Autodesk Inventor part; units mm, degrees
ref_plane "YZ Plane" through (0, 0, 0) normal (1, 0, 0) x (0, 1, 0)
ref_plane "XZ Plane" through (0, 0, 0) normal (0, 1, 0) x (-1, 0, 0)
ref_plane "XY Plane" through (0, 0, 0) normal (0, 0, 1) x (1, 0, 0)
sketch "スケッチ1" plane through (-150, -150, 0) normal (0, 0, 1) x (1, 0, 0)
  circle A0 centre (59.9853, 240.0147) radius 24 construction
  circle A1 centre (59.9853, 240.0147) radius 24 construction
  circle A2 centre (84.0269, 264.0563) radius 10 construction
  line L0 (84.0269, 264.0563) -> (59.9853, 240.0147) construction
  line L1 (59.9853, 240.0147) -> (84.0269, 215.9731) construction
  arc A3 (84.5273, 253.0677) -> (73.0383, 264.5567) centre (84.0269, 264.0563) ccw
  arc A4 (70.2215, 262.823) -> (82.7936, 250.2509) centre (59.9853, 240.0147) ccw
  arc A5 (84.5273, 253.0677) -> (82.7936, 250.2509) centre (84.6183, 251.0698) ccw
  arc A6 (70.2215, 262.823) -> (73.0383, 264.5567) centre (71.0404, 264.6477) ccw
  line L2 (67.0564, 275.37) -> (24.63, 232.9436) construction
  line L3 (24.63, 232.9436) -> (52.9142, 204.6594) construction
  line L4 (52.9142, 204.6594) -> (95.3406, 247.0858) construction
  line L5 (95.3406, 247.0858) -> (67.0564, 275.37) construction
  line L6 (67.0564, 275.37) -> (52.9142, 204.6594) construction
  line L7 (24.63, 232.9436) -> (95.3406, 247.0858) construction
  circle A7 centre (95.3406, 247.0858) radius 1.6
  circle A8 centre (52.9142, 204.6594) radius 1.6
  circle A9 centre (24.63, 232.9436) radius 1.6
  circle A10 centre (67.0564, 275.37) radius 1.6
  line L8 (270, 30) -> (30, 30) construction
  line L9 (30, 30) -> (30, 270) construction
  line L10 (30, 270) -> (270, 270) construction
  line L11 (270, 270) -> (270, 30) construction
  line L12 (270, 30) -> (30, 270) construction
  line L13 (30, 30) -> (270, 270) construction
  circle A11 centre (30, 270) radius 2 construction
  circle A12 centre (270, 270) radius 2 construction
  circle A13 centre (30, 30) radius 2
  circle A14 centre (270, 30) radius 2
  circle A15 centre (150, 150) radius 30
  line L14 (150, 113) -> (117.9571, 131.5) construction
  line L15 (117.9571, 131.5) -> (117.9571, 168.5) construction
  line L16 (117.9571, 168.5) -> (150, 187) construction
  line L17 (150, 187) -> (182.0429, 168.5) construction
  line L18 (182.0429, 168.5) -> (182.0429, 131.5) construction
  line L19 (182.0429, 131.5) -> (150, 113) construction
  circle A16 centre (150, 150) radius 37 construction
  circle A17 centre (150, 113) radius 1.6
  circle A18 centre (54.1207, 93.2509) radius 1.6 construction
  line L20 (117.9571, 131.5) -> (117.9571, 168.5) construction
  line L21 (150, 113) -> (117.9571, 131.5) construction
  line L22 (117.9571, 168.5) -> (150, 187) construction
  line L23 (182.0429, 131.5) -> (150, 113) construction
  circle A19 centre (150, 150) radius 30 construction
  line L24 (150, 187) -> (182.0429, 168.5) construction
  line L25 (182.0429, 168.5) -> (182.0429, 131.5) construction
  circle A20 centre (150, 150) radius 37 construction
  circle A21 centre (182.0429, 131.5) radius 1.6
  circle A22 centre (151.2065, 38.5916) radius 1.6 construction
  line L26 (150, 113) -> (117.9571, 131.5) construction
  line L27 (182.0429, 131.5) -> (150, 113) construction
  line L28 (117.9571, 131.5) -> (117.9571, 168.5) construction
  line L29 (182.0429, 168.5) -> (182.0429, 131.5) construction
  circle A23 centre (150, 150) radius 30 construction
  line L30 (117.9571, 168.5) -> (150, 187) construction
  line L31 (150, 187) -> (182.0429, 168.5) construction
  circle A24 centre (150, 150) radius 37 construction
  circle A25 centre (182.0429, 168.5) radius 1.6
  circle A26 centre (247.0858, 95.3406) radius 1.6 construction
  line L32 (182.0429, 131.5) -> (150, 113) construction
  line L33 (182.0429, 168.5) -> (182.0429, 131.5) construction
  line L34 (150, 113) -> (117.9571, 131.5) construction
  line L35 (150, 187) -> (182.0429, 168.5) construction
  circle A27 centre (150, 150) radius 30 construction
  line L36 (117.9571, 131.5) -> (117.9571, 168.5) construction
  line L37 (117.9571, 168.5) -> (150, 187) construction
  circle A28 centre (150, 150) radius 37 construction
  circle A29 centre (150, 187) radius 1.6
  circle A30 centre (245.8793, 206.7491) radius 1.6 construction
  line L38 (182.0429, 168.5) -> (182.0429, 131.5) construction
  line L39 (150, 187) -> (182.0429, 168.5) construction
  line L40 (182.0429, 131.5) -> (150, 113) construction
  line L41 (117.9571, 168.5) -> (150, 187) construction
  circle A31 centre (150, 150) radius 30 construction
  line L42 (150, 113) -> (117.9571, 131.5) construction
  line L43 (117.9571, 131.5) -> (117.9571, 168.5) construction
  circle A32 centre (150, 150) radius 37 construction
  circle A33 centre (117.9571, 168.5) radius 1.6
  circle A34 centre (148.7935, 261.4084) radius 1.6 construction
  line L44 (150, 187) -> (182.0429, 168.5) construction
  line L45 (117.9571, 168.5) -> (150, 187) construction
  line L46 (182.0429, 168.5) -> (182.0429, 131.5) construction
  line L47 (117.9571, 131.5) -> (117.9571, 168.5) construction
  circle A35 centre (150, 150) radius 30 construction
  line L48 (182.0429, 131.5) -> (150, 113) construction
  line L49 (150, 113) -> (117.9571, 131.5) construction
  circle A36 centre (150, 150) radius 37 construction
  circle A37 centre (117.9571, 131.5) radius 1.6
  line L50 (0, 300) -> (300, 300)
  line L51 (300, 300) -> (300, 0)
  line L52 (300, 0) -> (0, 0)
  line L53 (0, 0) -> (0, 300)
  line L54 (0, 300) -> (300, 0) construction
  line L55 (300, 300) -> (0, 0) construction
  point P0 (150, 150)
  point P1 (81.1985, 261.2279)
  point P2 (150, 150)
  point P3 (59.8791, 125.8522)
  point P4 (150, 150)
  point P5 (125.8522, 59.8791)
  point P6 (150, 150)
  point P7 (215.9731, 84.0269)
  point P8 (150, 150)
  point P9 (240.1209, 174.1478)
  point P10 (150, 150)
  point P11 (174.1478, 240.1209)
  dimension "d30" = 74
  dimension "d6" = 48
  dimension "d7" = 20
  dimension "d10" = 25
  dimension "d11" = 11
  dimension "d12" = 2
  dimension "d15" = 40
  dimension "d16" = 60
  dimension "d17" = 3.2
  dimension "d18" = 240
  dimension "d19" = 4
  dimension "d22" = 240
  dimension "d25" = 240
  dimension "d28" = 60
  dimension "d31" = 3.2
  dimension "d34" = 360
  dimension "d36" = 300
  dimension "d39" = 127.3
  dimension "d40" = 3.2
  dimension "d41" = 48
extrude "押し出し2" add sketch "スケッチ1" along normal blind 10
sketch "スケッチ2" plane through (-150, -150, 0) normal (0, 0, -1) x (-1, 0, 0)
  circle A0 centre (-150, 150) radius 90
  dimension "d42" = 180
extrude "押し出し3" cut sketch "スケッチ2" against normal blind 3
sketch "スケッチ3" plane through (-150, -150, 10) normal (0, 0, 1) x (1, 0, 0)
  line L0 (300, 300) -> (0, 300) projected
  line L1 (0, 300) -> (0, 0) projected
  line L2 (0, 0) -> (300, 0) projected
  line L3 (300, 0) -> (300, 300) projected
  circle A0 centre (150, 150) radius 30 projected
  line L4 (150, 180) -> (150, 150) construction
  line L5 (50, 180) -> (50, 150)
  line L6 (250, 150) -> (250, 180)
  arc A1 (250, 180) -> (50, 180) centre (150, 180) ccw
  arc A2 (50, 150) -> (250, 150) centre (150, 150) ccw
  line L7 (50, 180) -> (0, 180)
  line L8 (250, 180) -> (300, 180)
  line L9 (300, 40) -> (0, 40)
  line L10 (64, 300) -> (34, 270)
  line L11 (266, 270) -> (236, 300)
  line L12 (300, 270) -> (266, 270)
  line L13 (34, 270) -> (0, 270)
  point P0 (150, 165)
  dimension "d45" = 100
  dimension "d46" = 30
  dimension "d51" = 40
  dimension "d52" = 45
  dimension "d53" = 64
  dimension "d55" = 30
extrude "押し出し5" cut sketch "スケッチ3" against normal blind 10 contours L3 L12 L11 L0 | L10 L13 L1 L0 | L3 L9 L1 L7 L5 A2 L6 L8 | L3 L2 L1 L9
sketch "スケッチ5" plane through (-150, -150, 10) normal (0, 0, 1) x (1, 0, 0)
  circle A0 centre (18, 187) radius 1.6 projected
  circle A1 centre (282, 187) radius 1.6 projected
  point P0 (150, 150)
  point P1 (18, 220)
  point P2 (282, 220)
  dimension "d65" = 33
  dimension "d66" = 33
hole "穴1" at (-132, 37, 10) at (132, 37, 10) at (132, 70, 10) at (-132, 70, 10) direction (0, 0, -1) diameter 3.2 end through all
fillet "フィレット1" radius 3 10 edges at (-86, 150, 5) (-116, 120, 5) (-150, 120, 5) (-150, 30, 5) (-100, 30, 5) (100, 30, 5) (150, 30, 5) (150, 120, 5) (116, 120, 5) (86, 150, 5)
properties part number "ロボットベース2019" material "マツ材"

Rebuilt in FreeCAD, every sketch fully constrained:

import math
import FreeCAD as App
import Part
import Sketcher


def edges_at(feature, points):
    """Names of the edges that pass closest to the given points."""
    edges = feature.Shape.Edges
    near = lambda p: min(range(len(edges)), key=lambda i: edges[i].distToShape(Part.Vertex(*p))[0])
    return sorted({f"Edge{near(p) + 1}" for p in points})

doc = App.newDocument("Part")
body = doc.addObject("PartDesign::Body", "Body")

# Sketch on XY plane
sketch1 = doc.addObject("Sketcher::SketchObject", "Sketch")
body.addObject(sketch1)
sketch1.AttachmentSupport = (doc.XY_Plane, [""])
sketch1.MapMode = "FlatFace"
sketch1.addGeometry(Part.LineSegment(App.Vector(150, 150, 0), App.Vector(-150, 150, 0)), False)
sketch1.addGeometry(Part.LineSegment(App.Vector(-150, 150, 0), App.Vector(-150, -150, 0)), False)
sketch1.addGeometry(Part.LineSegment(App.Vector(-150, -150, 0), App.Vector(150, -150, 0)), False)
sketch1.addGeometry(Part.LineSegment(App.Vector(150, -150, 0), App.Vector(150, 150, 0)), False)
sketch1.addGeometry(Part.Circle(App.Vector(-120, -120, 0), App.Vector(0, 0, 1), 2), False)
sketch1.addGeometry(Part.Circle(App.Vector(-32, -18.5, 0), App.Vector(0, 0, 1), 1.6), False)
sketch1.addGeometry(Part.Circle(App.Vector(120, -120, 0), App.Vector(0, 0, 1), 2), False)
sketch1.addGeometry(Part.Circle(App.Vector(0, -37, 0), App.Vector(0, 0, 1), 1.6), False)
sketch1.addGeometry(Part.Circle(App.Vector(32, -18.5, 0), App.Vector(0, 0, 1), 1.6), False)
sketch1.addGeometry(Part.Circle(App.Vector(-97.1, 54.7, 0), App.Vector(0, 0, 1), 1.6), False)
sketch1.addGeometry(Part.Circle(App.Vector(-32, 18.5, 0), App.Vector(0, 0, 1), 1.6), False)
sketch1.addGeometry(Part.Circle(App.Vector(-125.4, 82.9, 0), App.Vector(0, 0, 1), 1.6), False)
sketch1.addGeometry(Part.ArcOfCircle(Part.Circle(App.Vector(-66, 114.1, 0), App.Vector(0, 0, 1), 11), math.radians(-87), math.radians(177)), False)
sketch1.addGeometry(Part.ArcOfCircle(Part.Circle(App.Vector(-65.4, 101.1, 0), App.Vector(0, 0, 1), 2), math.radians(93), math.radians(204)), False)
sketch1.addGeometry(Part.ArcOfCircle(Part.Circle(App.Vector(-90, 90, 0), App.Vector(0, 0, 1), 25), math.radians(66), math.radians(384)), False)
sketch1.addGeometry(Part.ArcOfCircle(Part.Circle(App.Vector(-79, 114.6, 0), App.Vector(0, 0, 1), 2), math.radians(-114), math.radians(-3)), False)
sketch1.addGeometry(Part.Circle(App.Vector(-82.9, 125.4, 0), App.Vector(0, 0, 1), 1.6), False)
sketch1.addGeometry(Part.Circle(App.Vector(-54.7, 97.1, 0), App.Vector(0, 0, 1), 1.6), False)
sketch1.addGeometry(Part.Circle(App.Vector(0, 0, 0), App.Vector(0, 0, 1), 30), False)
sketch1.addGeometry(Part.Circle(App.Vector(32, 18.5, 0), App.Vector(0, 0, 1), 1.6), False)
sketch1.addGeometry(Part.Circle(App.Vector(0, 37, 0), App.Vector(0, 0, 1), 1.6), False)
sketch1.addConstraint(Sketcher.Constraint("Coincident", 0, 2, 1, 1))
sketch1.addConstraint(Sketcher.Constraint("Coincident", 1, 2, 2, 1))
sketch1.addConstraint(Sketcher.Constraint("Coincident", 2, 2, 3, 1))
sketch1.addConstraint(Sketcher.Constraint("Coincident", 3, 2, 0, 1))
sketch1.addConstraint(Sketcher.Constraint("Tangent", 12, 1, 13, 1))
sketch1.addConstraint(Sketcher.Constraint("Tangent", 13, 2, 14, 2))
sketch1.addConstraint(Sketcher.Constraint("Tangent", 14, 1, 15, 1))
sketch1.addConstraint(Sketcher.Constraint("Tangent", 15, 2, 12, 2))
sketch1.addConstraint(Sketcher.Constraint("Horizontal", 0))
sketch1.addConstraint(Sketcher.Constraint("Vertical", 1))
sketch1.addConstraint(Sketcher.Constraint("Horizontal", 2))
sketch1.addConstraint(Sketcher.Constraint("Vertical", 3))
sketch1.addConstraint(Sketcher.Constraint("Coincident", 18, 3, -1, 1))
sketch1.addConstraint(Sketcher.Constraint("Equal", 4, 6))
sketch1.addConstraint(Sketcher.Constraint("Equal", 5, 7))
sketch1.addConstraint(Sketcher.Constraint("Equal", 7, 8))
sketch1.addConstraint(Sketcher.Constraint("Equal", 8, 9))
sketch1.addConstraint(Sketcher.Constraint("Equal", 9, 10))
sketch1.addConstraint(Sketcher.Constraint("Equal", 10, 11))
sketch1.addConstraint(Sketcher.Constraint("Equal", 6, 13))
sketch1.addConstraint(Sketcher.Constraint("Equal", 13, 15))
sketch1.addConstraint(Sketcher.Constraint("Equal", 11, 16))
sketch1.addConstraint(Sketcher.Constraint("Equal", 16, 17))
sketch1.addConstraint(Sketcher.Constraint("Equal", 17, 19))
sketch1.addConstraint(Sketcher.Constraint("Equal", 19, 20))
sketch1.addConstraint(Sketcher.Constraint("Symmetric", 8, 3, 10, 3, -1, 1))
sketch1.addConstraint(Sketcher.Constraint("Symmetric", 5, 3, 19, 3, -1, 1))
sketch1.addConstraint(Sketcher.Constraint("Symmetric", 7, 3, 20, 3, -1, 1))
sketch1.addConstraint(Sketcher.Constraint("Symmetric", 0, 2, 2, 2, -1, 1))
sketch1.addConstraint(Sketcher.Constraint("Symmetric", 4, 3, 6, 3, -2))
sketch1.addConstraint(Sketcher.Constraint("Symmetric", 5, 3, 8, 3, -2))
sketch1.addConstraint(Sketcher.Constraint("PointOnObject", 7, 3, -2))
sketch1.addConstraint(Sketcher.Constraint("Equal", 2, 1))
sketch1.addConstraint(Sketcher.Constraint("Diameter", 4, 4.0))
sketch1.addConstraint(Sketcher.Constraint("Diameter", 18, 60.0))
sketch1.addConstraint(Sketcher.Constraint("Radius", 12, 11.0))
sketch1.addConstraint(Sketcher.Constraint("Radius", 14, 25.0))
sketch1.addConstraint(Sketcher.Constraint("Diameter", 5, 3.2))
sketch1.addConstraint(Sketcher.Constraint("DistanceX", 0, 2, 0, 1, 300.0))
sketch1.addConstraint(Sketcher.Constraint("DistanceX", 4, 3, 6, 3, 240.0))
sketch1.addConstraint(Sketcher.Constraint("DistanceY", 4, 3, -1, 1, 120.0))
sketch1.addConstraint(Sketcher.Constraint("DistanceY", 7, 3, -1, 1, 37.0))
sketch1.addConstraint(Sketcher.Constraint("DistanceY", 5, 3, 10, 3, 37.0))
sketch1.addConstraint(Sketcher.Constraint("DistanceX", 11, 3, -1, 1, 125.37))
sketch1.addConstraint(Sketcher.Constraint("DistanceY", -1, 1, 16, 3, 125.37))
sketch1.addConstraint(Sketcher.Constraint("DistanceY", 12, 1, 15, 3, 11.58))
sketch1.addConstraint(Sketcher.Constraint("DistanceX", 5, 3, -1, 1, 32.043))
sketch1.addConstraint(Sketcher.Constraint("DistanceX", 12, 3, -1, 1, 65.973))
sketch1.addConstraint(Sketcher.Constraint("DistanceY", -1, 1, 13, 2, 100.251))
sketch1.addConstraint(Sketcher.Constraint("DistanceX", 9, 3, 5, 3, 65.043))
sketch1.addConstraint(Sketcher.Constraint("DistanceY", 9, 3, 12, 3, 59.397))
sketch1.addConstraint(Sketcher.Constraint("DistanceX", 9, 3, 13, 3, 31.704))
sketch1.addConstraint(Sketcher.Constraint("DistanceY", 11, 3, 14, 3, 7.071))
sketch1.addConstraint(Sketcher.Constraint("DistanceX", 16, 3, 15, 3, 3.984))
sketch1.addConstraint(Sketcher.Constraint("DistanceY", 17, 3, 13, 3, 3.984))
sketch1.addConstraint(Sketcher.Constraint("DistanceX", 13, 2, 17, 3, 12.547))
pad1 = doc.addObject("PartDesign::Pad", "Pad")
body.addObject(pad1)
pad1.Profile = sketch1
pad1.Length = 10

# Sketch on XY plane
sketch2 = doc.addObject("Sketcher::SketchObject", "Sketch001")
body.addObject(sketch2)
sketch2.AttachmentSupport = (doc.XY_Plane, [""])
sketch2.MapMode = "FlatFace"
sketch2.addGeometry(Part.Circle(App.Vector(0, 0, 0), App.Vector(0, 0, 1), 90), False)
sketch2.addConstraint(Sketcher.Constraint("Coincident", 0, 3, -1, 1))
sketch2.addConstraint(Sketcher.Constraint("Diameter", 0, 180.0))
pocket1 = doc.addObject("PartDesign::Pocket", "Pocket")
body.addObject(pocket1)
pocket1.Profile = sketch2
pocket1.Length = 3
pocket1.Reversed = True

# Sketch on XY plane
sketch3 = doc.addObject("Sketcher::SketchObject", "Sketch002")
body.addObject(sketch3)
sketch3.AttachmentSupport = (doc.XY_Plane, [""])
sketch3.MapMode = "FlatFace"
sketch3.AttachmentOffset = App.Placement(App.Vector(0, 0, 10), App.Rotation())
sketch3.addGeometry(Part.LineSegment(App.Vector(150, 120, 0), App.Vector(150, 150, 0)), False)
sketch3.addGeometry(Part.LineSegment(App.Vector(150, 150, 0), App.Vector(86, 150, 0)), False)
sketch3.addGeometry(Part.LineSegment(App.Vector(86, 150, 0), App.Vector(116, 120, 0)), False)
sketch3.addGeometry(Part.LineSegment(App.Vector(116, 120, 0), App.Vector(150, 120, 0)), False)
sketch3.addGeometry(Part.LineSegment(App.Vector(-116, 120, 0), App.Vector(-86, 150, 0)), False)
sketch3.addGeometry(Part.LineSegment(App.Vector(-86, 150, 0), App.Vector(-150, 150, 0)), False)
sketch3.addGeometry(Part.LineSegment(App.Vector(-150, 150, 0), App.Vector(-150, 120, 0)), False)
sketch3.addGeometry(Part.LineSegment(App.Vector(-150, 120, 0), App.Vector(-116, 120, 0)), False)
sketch3.addGeometry(Part.LineSegment(App.Vector(150, 30, 0), App.Vector(100, 30, 0)), False)
sketch3.addGeometry(Part.LineSegment(App.Vector(100, 30, 0), App.Vector(100, 0, 0)), False)
sketch3.addGeometry(Part.ArcOfCircle(Part.Circle(App.Vector(0, 0, 0), App.Vector(0, 0, 1), 100), math.radians(180), math.radians(360)), False)
sketch3.addGeometry(Part.LineSegment(App.Vector(-100, 0, 0), App.Vector(-100, 30, 0)), False)
sketch3.addGeometry(Part.LineSegment(App.Vector(-100, 30, 0), App.Vector(-150, 30, 0)), False)
sketch3.addGeometry(Part.LineSegment(App.Vector(-150, 30, 0), App.Vector(-150, -150, 0)), False)
sketch3.addGeometry(Part.LineSegment(App.Vector(-150, -150, 0), App.Vector(150, -150, 0)), False)
sketch3.addGeometry(Part.LineSegment(App.Vector(150, -150, 0), App.Vector(150, 30, 0)), False)
sketch3.addConstraint(Sketcher.Constraint("Coincident", 0, 2, 1, 1))
sketch3.addConstraint(Sketcher.Constraint("Coincident", 1, 2, 2, 1))
sketch3.addConstraint(Sketcher.Constraint("Coincident", 2, 2, 3, 1))
sketch3.addConstraint(Sketcher.Constraint("Coincident", 3, 2, 0, 1))
sketch3.addConstraint(Sketcher.Constraint("Coincident", 4, 2, 5, 1))
sketch3.addConstraint(Sketcher.Constraint("Coincident", 5, 2, 6, 1))
sketch3.addConstraint(Sketcher.Constraint("Coincident", 6, 2, 7, 1))
sketch3.addConstraint(Sketcher.Constraint("Coincident", 7, 2, 4, 1))
sketch3.addConstraint(Sketcher.Constraint("Coincident", 8, 2, 9, 1))
sketch3.addConstraint(Sketcher.Constraint("Tangent", 9, 2, 10, 2))
sketch3.addConstraint(Sketcher.Constraint("Tangent", 10, 1, 11, 1))
sketch3.addConstraint(Sketcher.Constraint("Coincident", 11, 2, 12, 1))
sketch3.addConstraint(Sketcher.Constraint("Coincident", 12, 2, 13, 1))
sketch3.addConstraint(Sketcher.Constraint("Coincident", 13, 2, 14, 1))
sketch3.addConstraint(Sketcher.Constraint("Coincident", 14, 2, 15, 1))
sketch3.addConstraint(Sketcher.Constraint("Coincident", 15, 2, 8, 1))
sketch3.addConstraint(Sketcher.Constraint("Vertical", 0))
sketch3.addConstraint(Sketcher.Constraint("Horizontal", 1))
sketch3.addConstraint(Sketcher.Constraint("Horizontal", 3))
sketch3.addConstraint(Sketcher.Constraint("Horizontal", 5))
sketch3.addConstraint(Sketcher.Constraint("Vertical", 6))
sketch3.addConstraint(Sketcher.Constraint("Horizontal", 7))
sketch3.addConstraint(Sketcher.Constraint("Horizontal", 8))
sketch3.addConstraint(Sketcher.Constraint("Vertical", 9))
sketch3.addConstraint(Sketcher.Constraint("Vertical", 11))
sketch3.addConstraint(Sketcher.Constraint("Horizontal", 12))
sketch3.addConstraint(Sketcher.Constraint("Vertical", 13))
sketch3.addConstraint(Sketcher.Constraint("Horizontal", 14))
sketch3.addConstraint(Sketcher.Constraint("Vertical", 15))
sketch3.addConstraint(Sketcher.Constraint("Coincident", 10, 3, -1, 1))
sketch3.addConstraint(Sketcher.Constraint("Symmetric", 0, 2, 13, 2, -1, 1))
sketch3.addConstraint(Sketcher.Constraint("Symmetric", 5, 2, 14, 2, -1, 1))
sketch3.addConstraint(Sketcher.Constraint("Symmetric", 3, 2, 6, 2, -2))
sketch3.addConstraint(Sketcher.Constraint("Perpendicular", 2, 4))
sketch3.addConstraint(Sketcher.Constraint("Horizontal", 8, 2, 11, 2))
sketch3.addConstraint(Sketcher.Constraint("Equal", 1, 5))
sketch3.addConstraint(Sketcher.Constraint("Equal", 3, 7))
sketch3.addConstraint(Sketcher.Constraint("Equal", 6, 9))
sketch3.addConstraint(Sketcher.Constraint("Radius", 10, 100.0))
sketch3.addConstraint(Sketcher.Constraint("DistanceX", 1, 2, 1, 1, 64.0))
sketch3.addConstraint(Sketcher.Constraint("DistanceY", 0, 1, 0, 2, 30.0))
sketch3.addConstraint(Sketcher.Constraint("DistanceX", 8, 2, 8, 1, 50.0))
sketch3.addConstraint(Sketcher.Constraint("DistanceY", 13, 2, 13, 1, 180.0))
pocket2 = doc.addObject("PartDesign::Pocket", "Pocket001")
body.addObject(pocket2)
pocket2.Profile = sketch3
pocket2.Length = 10

# Sketch on XY plane
sketch4 = doc.addObject("Sketcher::SketchObject", "Sketch003")
body.addObject(sketch4)
sketch4.AttachmentSupport = (doc.XY_Plane, [""])
sketch4.MapMode = "FlatFace"
sketch4.AttachmentOffset = App.Placement(App.Vector(0, 0, 10), App.Rotation())
sketch4.addGeometry(Part.Circle(App.Vector(-132, 37, 0), App.Vector(0, 0, 1), 1.6), False)
sketch4.addGeometry(Part.Circle(App.Vector(132, 37, 0), App.Vector(0, 0, 1), 1.6), False)
sketch4.addGeometry(Part.Circle(App.Vector(132, 70, 0), App.Vector(0, 0, 1), 1.6), False)
sketch4.addGeometry(Part.Circle(App.Vector(-132, 70, 0), App.Vector(0, 0, 1), 1.6), False)
sketch4.addConstraint(Sketcher.Constraint("Equal", 0, 1))
sketch4.addConstraint(Sketcher.Constraint("Equal", 1, 2))
sketch4.addConstraint(Sketcher.Constraint("Equal", 2, 3))
sketch4.addConstraint(Sketcher.Constraint("Symmetric", 0, 3, 1, 3, -2))
sketch4.addConstraint(Sketcher.Constraint("Symmetric", 2, 3, 3, 3, -2))
sketch4.addConstraint(Sketcher.Constraint("Vertical", 1, 3, 2, 3))
sketch4.addConstraint(Sketcher.Constraint("Diameter", 0, 3.2))
sketch4.addConstraint(Sketcher.Constraint("DistanceX", 0, 3, -1, 1, 132.0))
sketch4.addConstraint(Sketcher.Constraint("DistanceY", -1, 1, 0, 3, 37.0))
sketch4.addConstraint(Sketcher.Constraint("DistanceY", -1, 1, 2, 3, 70.0))
doc.recompute()
hole = doc.addObject("PartDesign::Hole", "Hole")
body.addObject(hole)
hole.Profile = sketch4
hole.ThreadType = "None"
hole.Diameter = 3.2
hole.DepthType = "ThroughAll"
doc.recompute()

fillet = doc.addObject("PartDesign::Fillet", "Fillet")
body.addObject(fillet)
fillet.Base = (hole, edges_at(hole, [
    (-86, 150, 5),
    (-116, 120, 5),
    (-150, 120, 5),
    (-150, 30, 5),
    (-100, 30, 5),
    (100, 30, 5),
    (150, 30, 5),
    (150, 120, 5),
    (116, 120, 5),
    (86, 150, 5),
]))
fillet.Radius = 3

doc.recompute()
